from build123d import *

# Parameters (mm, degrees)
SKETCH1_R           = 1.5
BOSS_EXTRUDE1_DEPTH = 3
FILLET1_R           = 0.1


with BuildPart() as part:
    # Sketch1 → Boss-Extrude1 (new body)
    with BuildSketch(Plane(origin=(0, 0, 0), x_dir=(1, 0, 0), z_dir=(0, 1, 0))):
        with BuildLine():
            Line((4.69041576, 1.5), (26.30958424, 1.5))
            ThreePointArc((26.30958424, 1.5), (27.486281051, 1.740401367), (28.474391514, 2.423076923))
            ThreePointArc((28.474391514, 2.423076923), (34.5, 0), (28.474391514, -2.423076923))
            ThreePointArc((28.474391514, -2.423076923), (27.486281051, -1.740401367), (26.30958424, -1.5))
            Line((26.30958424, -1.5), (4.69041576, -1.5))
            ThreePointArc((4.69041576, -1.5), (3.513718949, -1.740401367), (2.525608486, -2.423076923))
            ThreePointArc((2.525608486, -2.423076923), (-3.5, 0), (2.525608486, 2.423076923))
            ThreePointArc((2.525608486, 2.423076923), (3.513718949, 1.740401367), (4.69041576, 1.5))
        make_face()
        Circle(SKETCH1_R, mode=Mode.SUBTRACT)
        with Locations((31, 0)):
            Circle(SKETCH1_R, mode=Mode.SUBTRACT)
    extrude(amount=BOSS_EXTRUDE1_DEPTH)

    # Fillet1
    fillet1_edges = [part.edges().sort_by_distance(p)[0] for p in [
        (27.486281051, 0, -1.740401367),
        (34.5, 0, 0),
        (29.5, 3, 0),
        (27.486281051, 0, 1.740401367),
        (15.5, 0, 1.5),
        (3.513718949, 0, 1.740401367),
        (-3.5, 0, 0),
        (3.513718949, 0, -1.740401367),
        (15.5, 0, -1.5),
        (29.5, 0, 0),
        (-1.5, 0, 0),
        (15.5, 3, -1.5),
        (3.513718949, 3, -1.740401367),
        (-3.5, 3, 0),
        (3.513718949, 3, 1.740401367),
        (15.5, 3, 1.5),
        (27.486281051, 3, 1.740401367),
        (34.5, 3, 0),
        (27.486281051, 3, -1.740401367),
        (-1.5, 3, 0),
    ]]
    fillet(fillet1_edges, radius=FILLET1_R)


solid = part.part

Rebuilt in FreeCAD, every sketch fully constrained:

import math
import FreeCAD as App
import Part
import Sketcher
Q = App.Units.Quantity


def edges_at(feature, points):
    """Names of the edges that pass closest to the given points."""
    edges = feature.Shape.Edges
    near = lambda p: min(range(len(edges)), key=lambda i: edges[i].distToShape(Part.Vertex(*p))[0])
    return sorted({f"Edge{near(p) + 1}" for p in points})

doc = App.newDocument("Part")
body = doc.addObject("PartDesign::Body", "Body")

# Sketch on XZ plane
sketch1 = body.newObject("Sketcher::SketchObject", "Sketch")
sketch1.AttachmentSupport = (doc.getObject("XZ_Plane"), [""])
sketch1.MapMode = "FlatFace"
sketch1.addGeometry([
    Part.LineSegment(App.Vector(26.309584, -1.5, 0), App.Vector(4.690416, -1.5, 0)),  # 0
    Part.ArcOfCircle(Part.Circle(App.Vector(4.690416, -4.5, 0), App.Vector(0, 0, 1), 3), math.radians(90), math.radians(136.186939)),  # 1
    Part.ArcOfCircle(Part.Circle(App.Vector(0, 0, 0), App.Vector(0, 0, 1), 3.5), math.radians(43.813061), math.radians(316.186939)),  # 2
    Part.ArcOfCircle(Part.Circle(App.Vector(4.690416, 4.5, 0), App.Vector(0, 0, 1), 3), math.radians(-136.186939), math.radians(-90)),  # 3
    Part.LineSegment(App.Vector(4.690416, 1.5, 0), App.Vector(26.309584, 1.5, 0)),  # 4
    Part.ArcOfCircle(Part.Circle(App.Vector(26.309584, 4.5, 0), App.Vector(0, 0, 1), 3), math.radians(-90), math.radians(-43.813061)),  # 5
    Part.ArcOfCircle(Part.Circle(App.Vector(31, 0, 0), App.Vector(0, 0, 1), 3.5), math.radians(-136.186939), math.radians(136.186939)),  # 6
    Part.ArcOfCircle(Part.Circle(App.Vector(26.309584, -4.5, 0), App.Vector(0, 0, 1), 3), math.radians(43.813061), math.radians(90)),  # 7
    Part.Circle(App.Vector(31, 0, 0), App.Vector(0, 0, 1), 1.5),  # 8
    Part.Circle(App.Vector(0, 0, 0), App.Vector(0, 0, 1), 1.5),  # 9
], False)
sketch1.addConstraint([
    Sketcher.Constraint("Tangent", 0, 2, 1, 1),
    Sketcher.Constraint("Tangent", 1, 2, 2, 2),
    Sketcher.Constraint("Tangent", 2, 1, 3, 1),
    Sketcher.Constraint("Tangent", 3, 2, 4, 1),
    Sketcher.Constraint("Tangent", 4, 2, 5, 1),
    Sketcher.Constraint("Tangent", 5, 2, 6, 2),
    Sketcher.Constraint("Tangent", 6, 1, 7, 1),
    Sketcher.Constraint("Tangent", 7, 2, 0, 1),
    Sketcher.Constraint("Horizontal", 0),
    Sketcher.Constraint("Horizontal", 4),
    Sketcher.Constraint("Coincident", 2, 3, -1, 1),
    Sketcher.Constraint("Coincident", 9, 3, -1, 1),
    Sketcher.Constraint("Coincident", 8, 3, 6, 3),
    Sketcher.Constraint("Equal", 1, 3),
    Sketcher.Constraint("Equal", 3, 5),
    Sketcher.Constraint("Equal", 2, 6),
    Sketcher.Constraint("Equal", 5, 7),
    Sketcher.Constraint("Equal", 8, 9),
    Sketcher.Constraint("Symmetric", 5, 3, 7, 3, -1),
    Sketcher.Constraint("Diameter", 8, Q("3 mm")),
    Sketcher.Constraint("Radius", 1, Q("3 mm")),
    Sketcher.Constraint("Radius", 2, Q("3.5 mm")),
    Sketcher.Constraint("DistanceX", -1, 1, 6, 3, Q("31 mm")),
    Sketcher.Constraint("DistanceY", 1, 3, 3, 3, Q("9 mm")),
])
pad1 = body.newObject("PartDesign::Pad", "Pad")
pad1.Profile = sketch1
pad1.Length = 3
pad1.Reversed = True
doc.recompute()

fillet = body.newObject("PartDesign::Fillet", "Fillet")
fillet.Base = (pad1, edges_at(pad1, [
    (27.486, 0, -1.74),
    (34.5, 0, 0),
    (29.5, 3, 0),
    (27.486, 0, 1.74),
    (15.5, 0, 1.5),
    (3.514, 0, 1.74),
    (-3.5, 0, 0),
    (3.514, 0, -1.74),
    (15.5, 0, -1.5),
    (29.5, 0, 0),
    (-1.5, 0, 0),
    (15.5, 3, -1.5),
    (3.514, 3, -1.74),
    (-3.5, 3, 0),
    (3.514, 3, 1.74),
    (15.5, 3, 1.5),
    (27.486, 3, 1.74),
    (34.5, 3, 0),
    (27.486, 3, -1.74),
    (-1.5, 3, 0),
]))
fillet.Radius = 0.1

doc.recompute()
